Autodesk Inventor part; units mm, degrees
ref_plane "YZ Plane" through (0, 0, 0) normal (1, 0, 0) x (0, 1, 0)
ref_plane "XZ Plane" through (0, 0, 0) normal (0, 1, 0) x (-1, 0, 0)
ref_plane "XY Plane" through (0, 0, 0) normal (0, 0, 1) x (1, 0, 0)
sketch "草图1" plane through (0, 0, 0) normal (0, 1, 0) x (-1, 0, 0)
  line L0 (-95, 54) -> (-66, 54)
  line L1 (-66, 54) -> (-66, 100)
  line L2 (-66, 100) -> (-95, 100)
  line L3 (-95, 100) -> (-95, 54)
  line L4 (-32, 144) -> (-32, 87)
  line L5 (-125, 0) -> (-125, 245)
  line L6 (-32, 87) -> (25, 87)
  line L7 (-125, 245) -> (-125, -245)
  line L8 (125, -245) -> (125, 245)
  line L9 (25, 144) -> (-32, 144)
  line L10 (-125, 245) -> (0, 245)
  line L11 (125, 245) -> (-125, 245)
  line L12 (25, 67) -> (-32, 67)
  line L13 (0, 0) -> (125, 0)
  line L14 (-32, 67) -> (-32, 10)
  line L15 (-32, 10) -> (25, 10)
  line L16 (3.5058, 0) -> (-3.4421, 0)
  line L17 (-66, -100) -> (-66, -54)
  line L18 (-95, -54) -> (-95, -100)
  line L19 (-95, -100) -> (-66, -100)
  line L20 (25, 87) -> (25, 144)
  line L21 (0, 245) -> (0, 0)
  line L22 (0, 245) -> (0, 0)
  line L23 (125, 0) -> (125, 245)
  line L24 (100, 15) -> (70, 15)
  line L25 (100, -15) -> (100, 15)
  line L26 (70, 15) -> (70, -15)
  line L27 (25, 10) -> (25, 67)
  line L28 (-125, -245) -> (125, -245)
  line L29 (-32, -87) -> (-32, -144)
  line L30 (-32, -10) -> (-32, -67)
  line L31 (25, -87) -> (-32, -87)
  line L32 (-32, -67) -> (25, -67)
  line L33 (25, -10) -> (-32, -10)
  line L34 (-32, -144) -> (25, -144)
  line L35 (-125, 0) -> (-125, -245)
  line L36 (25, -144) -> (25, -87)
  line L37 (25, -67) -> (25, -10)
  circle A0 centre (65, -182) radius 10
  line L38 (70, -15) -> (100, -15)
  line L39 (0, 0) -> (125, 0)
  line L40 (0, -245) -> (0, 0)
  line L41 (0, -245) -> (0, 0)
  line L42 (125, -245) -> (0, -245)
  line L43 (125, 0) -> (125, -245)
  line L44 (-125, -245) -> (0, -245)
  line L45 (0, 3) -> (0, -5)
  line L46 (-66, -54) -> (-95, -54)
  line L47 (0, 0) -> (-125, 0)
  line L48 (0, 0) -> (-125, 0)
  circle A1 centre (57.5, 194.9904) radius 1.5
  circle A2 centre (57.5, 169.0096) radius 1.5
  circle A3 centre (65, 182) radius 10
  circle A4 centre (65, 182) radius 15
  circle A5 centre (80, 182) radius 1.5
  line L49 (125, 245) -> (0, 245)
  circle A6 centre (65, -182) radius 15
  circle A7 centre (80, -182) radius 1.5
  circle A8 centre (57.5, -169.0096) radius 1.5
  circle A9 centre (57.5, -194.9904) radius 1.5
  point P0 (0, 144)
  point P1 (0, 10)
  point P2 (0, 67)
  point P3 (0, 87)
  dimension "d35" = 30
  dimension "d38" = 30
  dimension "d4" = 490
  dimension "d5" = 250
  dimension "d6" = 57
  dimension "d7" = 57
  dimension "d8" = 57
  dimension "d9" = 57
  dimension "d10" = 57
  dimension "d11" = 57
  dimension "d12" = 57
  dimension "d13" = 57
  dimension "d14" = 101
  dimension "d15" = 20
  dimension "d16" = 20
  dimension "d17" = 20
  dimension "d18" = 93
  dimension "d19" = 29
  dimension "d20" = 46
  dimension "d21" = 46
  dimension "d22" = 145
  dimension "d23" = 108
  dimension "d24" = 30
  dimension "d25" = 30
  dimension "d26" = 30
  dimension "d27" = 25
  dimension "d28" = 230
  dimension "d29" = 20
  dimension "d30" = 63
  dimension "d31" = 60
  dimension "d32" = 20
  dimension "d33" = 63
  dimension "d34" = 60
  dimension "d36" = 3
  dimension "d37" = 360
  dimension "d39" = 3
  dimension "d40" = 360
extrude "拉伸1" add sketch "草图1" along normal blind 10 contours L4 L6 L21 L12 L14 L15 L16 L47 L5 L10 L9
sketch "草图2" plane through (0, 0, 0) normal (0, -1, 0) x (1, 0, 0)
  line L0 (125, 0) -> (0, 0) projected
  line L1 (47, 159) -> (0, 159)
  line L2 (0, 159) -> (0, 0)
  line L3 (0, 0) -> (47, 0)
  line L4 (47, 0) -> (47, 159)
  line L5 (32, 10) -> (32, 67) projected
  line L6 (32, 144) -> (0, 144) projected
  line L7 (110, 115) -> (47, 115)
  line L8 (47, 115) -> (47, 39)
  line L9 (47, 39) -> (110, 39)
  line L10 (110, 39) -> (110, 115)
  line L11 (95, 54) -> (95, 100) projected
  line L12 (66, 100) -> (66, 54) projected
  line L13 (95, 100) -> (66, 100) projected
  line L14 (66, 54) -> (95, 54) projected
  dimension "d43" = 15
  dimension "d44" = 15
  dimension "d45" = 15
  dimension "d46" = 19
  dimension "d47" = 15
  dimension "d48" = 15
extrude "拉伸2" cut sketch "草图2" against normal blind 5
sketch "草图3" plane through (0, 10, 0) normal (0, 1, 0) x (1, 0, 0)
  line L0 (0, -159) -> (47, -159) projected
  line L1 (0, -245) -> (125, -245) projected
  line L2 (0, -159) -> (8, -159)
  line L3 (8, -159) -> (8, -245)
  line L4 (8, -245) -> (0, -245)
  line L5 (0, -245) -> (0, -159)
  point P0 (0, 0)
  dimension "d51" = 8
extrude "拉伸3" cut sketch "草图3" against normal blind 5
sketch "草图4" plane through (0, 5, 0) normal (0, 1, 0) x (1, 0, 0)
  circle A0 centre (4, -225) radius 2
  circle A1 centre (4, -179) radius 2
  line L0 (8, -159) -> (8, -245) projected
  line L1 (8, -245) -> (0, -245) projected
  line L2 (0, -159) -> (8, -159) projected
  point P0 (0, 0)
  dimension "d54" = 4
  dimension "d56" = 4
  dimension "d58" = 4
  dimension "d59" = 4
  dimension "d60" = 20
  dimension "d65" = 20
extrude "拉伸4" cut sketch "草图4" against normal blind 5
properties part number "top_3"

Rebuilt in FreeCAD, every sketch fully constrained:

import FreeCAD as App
import Part
import Sketcher
from FreeCAD import Vector


def add_polygon(sketch, points):
    """Adds a closed chain of lines whose ends are joined by coincident constraints."""
    first, n = sketch.GeometryCount, len(points)
    for a, b in zip(points, points[1:] + points[:1]):
        sketch.addGeometry(Part.LineSegment(App.Vector(*a, 0), App.Vector(*b, 0)), False)
    for i in range(n):
        sketch.addConstraint(Sketcher.Constraint("Coincident", first + i, 2, first + (i + 1) % n, 1))

doc = App.newDocument("Part")
body = doc.addObject("PartDesign::Body", "Body")

# Sketch on XZ plane
sketch1 = doc.addObject("Sketcher::SketchObject", "Sketch")
body.addObject(sketch1)
sketch1.AttachmentSupport = (doc.XZ_Plane, [""])
sketch1.MapMode = "FlatFace"
add_polygon(sketch1, [(32, 87), (32, 144), (0, 144), (0, 245), (125, 245), (125, 0), (0, 0), (0, 10), (32, 10), (32, 67), (0, 67), (0, 87)])  # lines 0-11
add_polygon(sketch1, [(66, 54), (95, 54), (95, 100), (66, 100)])  # lines 12-15
sketch1.addConstraint(Sketcher.Constraint("Vertical", 0))
sketch1.addConstraint(Sketcher.Constraint("Horizontal", 1))
sketch1.addConstraint(Sketcher.Constraint("Vertical", 2))
sketch1.addConstraint(Sketcher.Constraint("Horizontal", 3))
sketch1.addConstraint(Sketcher.Constraint("Vertical", 4))
sketch1.addConstraint(Sketcher.Constraint("Horizontal", 5))
sketch1.addConstraint(Sketcher.Constraint("Vertical", 6))
sketch1.addConstraint(Sketcher.Constraint("Horizontal", 7))
sketch1.addConstraint(Sketcher.Constraint("Vertical", 8))
sketch1.addConstraint(Sketcher.Constraint("Horizontal", 9))
sketch1.addConstraint(Sketcher.Constraint("Vertical", 10))
sketch1.addConstraint(Sketcher.Constraint("Horizontal", 11))
sketch1.addConstraint(Sketcher.Constraint("Horizontal", 12))
sketch1.addConstraint(Sketcher.Constraint("Vertical", 13))
sketch1.addConstraint(Sketcher.Constraint("Horizontal", 14))
sketch1.addConstraint(Sketcher.Constraint("Vertical", 15))
sketch1.addConstraint(Sketcher.Constraint("Coincident", 5, 2, -1, 1))
sketch1.addConstraint(Sketcher.Constraint("PointOnObject", 1, 2, -2))
sketch1.addConstraint(Sketcher.Constraint("PointOnObject", 9, 2, -2))
sketch1.addConstraint(Sketcher.Constraint("Vertical", 0, 2, 7, 2))
sketch1.addConstraint(Sketcher.Constraint("Equal", 0, 8))
sketch1.addConstraint(Sketcher.Constraint("DistanceX", 12, 1, 12, 2, 29.0))
sketch1.addConstraint(Sketcher.Constraint("DistanceY", 0, 1, 0, 2, 57.0))
sketch1.addConstraint(Sketcher.Constraint("DistanceY", 2, 1, 2, 2, 101.0))
sketch1.addConstraint(Sketcher.Constraint("DistanceY", 10, 1, 10, 2, 20.0))
sketch1.addConstraint(Sketcher.Constraint("DistanceY", 13, 1, 13, 2, 46.0))
sketch1.addConstraint(Sketcher.Constraint("DistanceX", 0, 2, 3, 2, 93.0))
sketch1.addConstraint(Sketcher.Constraint("DistanceX", 12, 2, 4, 2, 30.0))
sketch1.addConstraint(Sketcher.Constraint("DistanceX", 1, 2, 1, 1, 32.0))
sketch1.addConstraint(Sketcher.Constraint("DistanceY", 4, 2, 4, 1, 245.0))
sketch1.addConstraint(Sketcher.Constraint("DistanceY", -1, 1, 12, 2, 54.0))
pad1 = doc.addObject("PartDesign::Pad", "Pad")
body.addObject(pad1)
pad1.Profile = sketch1
pad1.Length = 10
pad1.Reversed = True

# Sketch on XZ plane
sketch2 = doc.addObject("Sketcher::SketchObject", "Sketch001")
body.addObject(sketch2)
sketch2.AttachmentSupport = (doc.XZ_Plane, [""])
sketch2.MapMode = "FlatFace"
add_polygon(sketch2, [(0, 0), (47, 0), (47, 39), (110, 39), (110, 115), (47, 115), (47, 159), (0, 159)])  # lines 0-7
add_polygon(sketch2, [(95, 54), (66, 54), (66, 100), (95, 100)])  # lines 8-11
sketch2.addConstraint(Sketcher.Constraint("Horizontal", 0))
sketch2.addConstraint(Sketcher.Constraint("Vertical", 1))
sketch2.addConstraint(Sketcher.Constraint("Horizontal", 2))
sketch2.addConstraint(Sketcher.Constraint("Vertical", 3))
sketch2.addConstraint(Sketcher.Constraint("Horizontal", 4))
sketch2.addConstraint(Sketcher.Constraint("Vertical", 5))
sketch2.addConstraint(Sketcher.Constraint("Horizontal", 6))
sketch2.addConstraint(Sketcher.Constraint("Vertical", 7))
sketch2.addConstraint(Sketcher.Constraint("Horizontal", 8))
sketch2.addConstraint(Sketcher.Constraint("Vertical", 9))
sketch2.addConstraint(Sketcher.Constraint("Horizontal", 10))
sketch2.addConstraint(Sketcher.Constraint("Vertical", 11))
sketch2.addConstraint(Sketcher.Constraint("Coincident", 7, 2, -1, 1))
sketch2.addConstraint(Sketcher.Constraint("Vertical", 1, 2, 4, 2))
sketch2.addConstraint(Sketcher.Constraint("DistanceX", 1, 2, 8, 2, 19.0))
sketch2.addConstraint(Sketcher.Constraint("DistanceY", 1, 2, 8, 2, 15.0))
sketch2.addConstraint(Sketcher.Constraint("DistanceY", 9, 2, 4, 2, 15.0))
sketch2.addConstraint(Sketcher.Constraint("DistanceX", 10, 2, 3, 2, 15.0))
sketch2.addConstraint(Sketcher.Constraint("DistanceX", 0, 1, 0, 2, 47.0))
sketch2.addConstraint(Sketcher.Constraint("DistanceX", 2, 1, 2, 2, 63.0))
sketch2.addConstraint(Sketcher.Constraint("DistanceY", 1, 1, 1, 2, 39.0))
sketch2.addConstraint(Sketcher.Constraint("DistanceY", 3, 1, 3, 2, 76.0))
sketch2.addConstraint(Sketcher.Constraint("DistanceY", 5, 1, 5, 2, 44.0))
pocket1 = doc.addObject("PartDesign::Pocket", "Pocket")
body.addObject(pocket1)
pocket1.Profile = sketch2
pocket1.Length = 5

# Sketch on XZ plane
sketch3 = doc.addObject("Sketcher::SketchObject", "Sketch002")
body.addObject(sketch3)
sketch3.AttachmentSupport = (doc.XZ_Plane, [""])
sketch3.MapMode = "FlatFace"
sketch3.AttachmentOffset = App.Placement(Vector(0, 0, -10), App.Rotation())
add_polygon(sketch3, [(8, 159), (0, 159), (0, 245), (8, 245)])  # lines 0-3
sketch3.addConstraint(Sketcher.Constraint("Horizontal", 0))
sketch3.addConstraint(Sketcher.Constraint("Vertical", 1))
sketch3.addConstraint(Sketcher.Constraint("Horizontal", 2))
sketch3.addConstraint(Sketcher.Constraint("Vertical", 3))
sketch3.addConstraint(Sketcher.Constraint("PointOnObject", 0, 2, -2))
sketch3.addConstraint(Sketcher.Constraint("DistanceX", 0, 2, 0, 1, 8.0))
sketch3.addConstraint(Sketcher.Constraint("DistanceY", 1, 1, 1, 2, 86.0))
sketch3.addConstraint(Sketcher.Constraint("DistanceY", -1, 1, 0, 2, 159.0))
pocket2 = doc.addObject("PartDesign::Pocket", "Pocket001")
body.addObject(pocket2)
pocket2.Profile = sketch3
pocket2.Length = 5
pocket2.Reversed = True

# Sketch on XZ plane
sketch4 = doc.addObject("Sketcher::SketchObject", "Sketch003")
body.addObject(sketch4)
sketch4.AttachmentSupport = (doc.XZ_Plane, [""])
sketch4.MapMode = "FlatFace"
sketch4.AttachmentOffset = App.Placement(Vector(0, 0, -5), App.Rotation())
sketch4.addGeometry(Part.Circle(Vector(4, 225, 0), Vector(0, 0, 1), 2), False)
sketch4.addGeometry(Part.Circle(Vector(4, 179, 0), Vector(0, 0, 1), 2), False)
sketch4.addConstraint(Sketcher.Constraint("Equal", 0, 1))
sketch4.addConstraint(Sketcher.Constraint("Vertical", 0, 3, 1, 3))
sketch4.addConstraint(Sketcher.Constraint("Diameter", 0, 4.0))
sketch4.addConstraint(Sketcher.Constraint("DistanceX", -1, 1, 0, 3, 4.0))
sketch4.addConstraint(Sketcher.Constraint("DistanceY", -1, 1, 0, 3, 225.0))
sketch4.addConstraint(Sketcher.Constraint("DistanceY", -1, 1, 1, 3, 179.0))
pocket3 = doc.addObject("PartDesign::Pocket", "Pocket002")
body.addObject(pocket3)
pocket3.Profile = sketch4
pocket3.Length = 5
pocket3.Reversed = True

doc.recompute()
